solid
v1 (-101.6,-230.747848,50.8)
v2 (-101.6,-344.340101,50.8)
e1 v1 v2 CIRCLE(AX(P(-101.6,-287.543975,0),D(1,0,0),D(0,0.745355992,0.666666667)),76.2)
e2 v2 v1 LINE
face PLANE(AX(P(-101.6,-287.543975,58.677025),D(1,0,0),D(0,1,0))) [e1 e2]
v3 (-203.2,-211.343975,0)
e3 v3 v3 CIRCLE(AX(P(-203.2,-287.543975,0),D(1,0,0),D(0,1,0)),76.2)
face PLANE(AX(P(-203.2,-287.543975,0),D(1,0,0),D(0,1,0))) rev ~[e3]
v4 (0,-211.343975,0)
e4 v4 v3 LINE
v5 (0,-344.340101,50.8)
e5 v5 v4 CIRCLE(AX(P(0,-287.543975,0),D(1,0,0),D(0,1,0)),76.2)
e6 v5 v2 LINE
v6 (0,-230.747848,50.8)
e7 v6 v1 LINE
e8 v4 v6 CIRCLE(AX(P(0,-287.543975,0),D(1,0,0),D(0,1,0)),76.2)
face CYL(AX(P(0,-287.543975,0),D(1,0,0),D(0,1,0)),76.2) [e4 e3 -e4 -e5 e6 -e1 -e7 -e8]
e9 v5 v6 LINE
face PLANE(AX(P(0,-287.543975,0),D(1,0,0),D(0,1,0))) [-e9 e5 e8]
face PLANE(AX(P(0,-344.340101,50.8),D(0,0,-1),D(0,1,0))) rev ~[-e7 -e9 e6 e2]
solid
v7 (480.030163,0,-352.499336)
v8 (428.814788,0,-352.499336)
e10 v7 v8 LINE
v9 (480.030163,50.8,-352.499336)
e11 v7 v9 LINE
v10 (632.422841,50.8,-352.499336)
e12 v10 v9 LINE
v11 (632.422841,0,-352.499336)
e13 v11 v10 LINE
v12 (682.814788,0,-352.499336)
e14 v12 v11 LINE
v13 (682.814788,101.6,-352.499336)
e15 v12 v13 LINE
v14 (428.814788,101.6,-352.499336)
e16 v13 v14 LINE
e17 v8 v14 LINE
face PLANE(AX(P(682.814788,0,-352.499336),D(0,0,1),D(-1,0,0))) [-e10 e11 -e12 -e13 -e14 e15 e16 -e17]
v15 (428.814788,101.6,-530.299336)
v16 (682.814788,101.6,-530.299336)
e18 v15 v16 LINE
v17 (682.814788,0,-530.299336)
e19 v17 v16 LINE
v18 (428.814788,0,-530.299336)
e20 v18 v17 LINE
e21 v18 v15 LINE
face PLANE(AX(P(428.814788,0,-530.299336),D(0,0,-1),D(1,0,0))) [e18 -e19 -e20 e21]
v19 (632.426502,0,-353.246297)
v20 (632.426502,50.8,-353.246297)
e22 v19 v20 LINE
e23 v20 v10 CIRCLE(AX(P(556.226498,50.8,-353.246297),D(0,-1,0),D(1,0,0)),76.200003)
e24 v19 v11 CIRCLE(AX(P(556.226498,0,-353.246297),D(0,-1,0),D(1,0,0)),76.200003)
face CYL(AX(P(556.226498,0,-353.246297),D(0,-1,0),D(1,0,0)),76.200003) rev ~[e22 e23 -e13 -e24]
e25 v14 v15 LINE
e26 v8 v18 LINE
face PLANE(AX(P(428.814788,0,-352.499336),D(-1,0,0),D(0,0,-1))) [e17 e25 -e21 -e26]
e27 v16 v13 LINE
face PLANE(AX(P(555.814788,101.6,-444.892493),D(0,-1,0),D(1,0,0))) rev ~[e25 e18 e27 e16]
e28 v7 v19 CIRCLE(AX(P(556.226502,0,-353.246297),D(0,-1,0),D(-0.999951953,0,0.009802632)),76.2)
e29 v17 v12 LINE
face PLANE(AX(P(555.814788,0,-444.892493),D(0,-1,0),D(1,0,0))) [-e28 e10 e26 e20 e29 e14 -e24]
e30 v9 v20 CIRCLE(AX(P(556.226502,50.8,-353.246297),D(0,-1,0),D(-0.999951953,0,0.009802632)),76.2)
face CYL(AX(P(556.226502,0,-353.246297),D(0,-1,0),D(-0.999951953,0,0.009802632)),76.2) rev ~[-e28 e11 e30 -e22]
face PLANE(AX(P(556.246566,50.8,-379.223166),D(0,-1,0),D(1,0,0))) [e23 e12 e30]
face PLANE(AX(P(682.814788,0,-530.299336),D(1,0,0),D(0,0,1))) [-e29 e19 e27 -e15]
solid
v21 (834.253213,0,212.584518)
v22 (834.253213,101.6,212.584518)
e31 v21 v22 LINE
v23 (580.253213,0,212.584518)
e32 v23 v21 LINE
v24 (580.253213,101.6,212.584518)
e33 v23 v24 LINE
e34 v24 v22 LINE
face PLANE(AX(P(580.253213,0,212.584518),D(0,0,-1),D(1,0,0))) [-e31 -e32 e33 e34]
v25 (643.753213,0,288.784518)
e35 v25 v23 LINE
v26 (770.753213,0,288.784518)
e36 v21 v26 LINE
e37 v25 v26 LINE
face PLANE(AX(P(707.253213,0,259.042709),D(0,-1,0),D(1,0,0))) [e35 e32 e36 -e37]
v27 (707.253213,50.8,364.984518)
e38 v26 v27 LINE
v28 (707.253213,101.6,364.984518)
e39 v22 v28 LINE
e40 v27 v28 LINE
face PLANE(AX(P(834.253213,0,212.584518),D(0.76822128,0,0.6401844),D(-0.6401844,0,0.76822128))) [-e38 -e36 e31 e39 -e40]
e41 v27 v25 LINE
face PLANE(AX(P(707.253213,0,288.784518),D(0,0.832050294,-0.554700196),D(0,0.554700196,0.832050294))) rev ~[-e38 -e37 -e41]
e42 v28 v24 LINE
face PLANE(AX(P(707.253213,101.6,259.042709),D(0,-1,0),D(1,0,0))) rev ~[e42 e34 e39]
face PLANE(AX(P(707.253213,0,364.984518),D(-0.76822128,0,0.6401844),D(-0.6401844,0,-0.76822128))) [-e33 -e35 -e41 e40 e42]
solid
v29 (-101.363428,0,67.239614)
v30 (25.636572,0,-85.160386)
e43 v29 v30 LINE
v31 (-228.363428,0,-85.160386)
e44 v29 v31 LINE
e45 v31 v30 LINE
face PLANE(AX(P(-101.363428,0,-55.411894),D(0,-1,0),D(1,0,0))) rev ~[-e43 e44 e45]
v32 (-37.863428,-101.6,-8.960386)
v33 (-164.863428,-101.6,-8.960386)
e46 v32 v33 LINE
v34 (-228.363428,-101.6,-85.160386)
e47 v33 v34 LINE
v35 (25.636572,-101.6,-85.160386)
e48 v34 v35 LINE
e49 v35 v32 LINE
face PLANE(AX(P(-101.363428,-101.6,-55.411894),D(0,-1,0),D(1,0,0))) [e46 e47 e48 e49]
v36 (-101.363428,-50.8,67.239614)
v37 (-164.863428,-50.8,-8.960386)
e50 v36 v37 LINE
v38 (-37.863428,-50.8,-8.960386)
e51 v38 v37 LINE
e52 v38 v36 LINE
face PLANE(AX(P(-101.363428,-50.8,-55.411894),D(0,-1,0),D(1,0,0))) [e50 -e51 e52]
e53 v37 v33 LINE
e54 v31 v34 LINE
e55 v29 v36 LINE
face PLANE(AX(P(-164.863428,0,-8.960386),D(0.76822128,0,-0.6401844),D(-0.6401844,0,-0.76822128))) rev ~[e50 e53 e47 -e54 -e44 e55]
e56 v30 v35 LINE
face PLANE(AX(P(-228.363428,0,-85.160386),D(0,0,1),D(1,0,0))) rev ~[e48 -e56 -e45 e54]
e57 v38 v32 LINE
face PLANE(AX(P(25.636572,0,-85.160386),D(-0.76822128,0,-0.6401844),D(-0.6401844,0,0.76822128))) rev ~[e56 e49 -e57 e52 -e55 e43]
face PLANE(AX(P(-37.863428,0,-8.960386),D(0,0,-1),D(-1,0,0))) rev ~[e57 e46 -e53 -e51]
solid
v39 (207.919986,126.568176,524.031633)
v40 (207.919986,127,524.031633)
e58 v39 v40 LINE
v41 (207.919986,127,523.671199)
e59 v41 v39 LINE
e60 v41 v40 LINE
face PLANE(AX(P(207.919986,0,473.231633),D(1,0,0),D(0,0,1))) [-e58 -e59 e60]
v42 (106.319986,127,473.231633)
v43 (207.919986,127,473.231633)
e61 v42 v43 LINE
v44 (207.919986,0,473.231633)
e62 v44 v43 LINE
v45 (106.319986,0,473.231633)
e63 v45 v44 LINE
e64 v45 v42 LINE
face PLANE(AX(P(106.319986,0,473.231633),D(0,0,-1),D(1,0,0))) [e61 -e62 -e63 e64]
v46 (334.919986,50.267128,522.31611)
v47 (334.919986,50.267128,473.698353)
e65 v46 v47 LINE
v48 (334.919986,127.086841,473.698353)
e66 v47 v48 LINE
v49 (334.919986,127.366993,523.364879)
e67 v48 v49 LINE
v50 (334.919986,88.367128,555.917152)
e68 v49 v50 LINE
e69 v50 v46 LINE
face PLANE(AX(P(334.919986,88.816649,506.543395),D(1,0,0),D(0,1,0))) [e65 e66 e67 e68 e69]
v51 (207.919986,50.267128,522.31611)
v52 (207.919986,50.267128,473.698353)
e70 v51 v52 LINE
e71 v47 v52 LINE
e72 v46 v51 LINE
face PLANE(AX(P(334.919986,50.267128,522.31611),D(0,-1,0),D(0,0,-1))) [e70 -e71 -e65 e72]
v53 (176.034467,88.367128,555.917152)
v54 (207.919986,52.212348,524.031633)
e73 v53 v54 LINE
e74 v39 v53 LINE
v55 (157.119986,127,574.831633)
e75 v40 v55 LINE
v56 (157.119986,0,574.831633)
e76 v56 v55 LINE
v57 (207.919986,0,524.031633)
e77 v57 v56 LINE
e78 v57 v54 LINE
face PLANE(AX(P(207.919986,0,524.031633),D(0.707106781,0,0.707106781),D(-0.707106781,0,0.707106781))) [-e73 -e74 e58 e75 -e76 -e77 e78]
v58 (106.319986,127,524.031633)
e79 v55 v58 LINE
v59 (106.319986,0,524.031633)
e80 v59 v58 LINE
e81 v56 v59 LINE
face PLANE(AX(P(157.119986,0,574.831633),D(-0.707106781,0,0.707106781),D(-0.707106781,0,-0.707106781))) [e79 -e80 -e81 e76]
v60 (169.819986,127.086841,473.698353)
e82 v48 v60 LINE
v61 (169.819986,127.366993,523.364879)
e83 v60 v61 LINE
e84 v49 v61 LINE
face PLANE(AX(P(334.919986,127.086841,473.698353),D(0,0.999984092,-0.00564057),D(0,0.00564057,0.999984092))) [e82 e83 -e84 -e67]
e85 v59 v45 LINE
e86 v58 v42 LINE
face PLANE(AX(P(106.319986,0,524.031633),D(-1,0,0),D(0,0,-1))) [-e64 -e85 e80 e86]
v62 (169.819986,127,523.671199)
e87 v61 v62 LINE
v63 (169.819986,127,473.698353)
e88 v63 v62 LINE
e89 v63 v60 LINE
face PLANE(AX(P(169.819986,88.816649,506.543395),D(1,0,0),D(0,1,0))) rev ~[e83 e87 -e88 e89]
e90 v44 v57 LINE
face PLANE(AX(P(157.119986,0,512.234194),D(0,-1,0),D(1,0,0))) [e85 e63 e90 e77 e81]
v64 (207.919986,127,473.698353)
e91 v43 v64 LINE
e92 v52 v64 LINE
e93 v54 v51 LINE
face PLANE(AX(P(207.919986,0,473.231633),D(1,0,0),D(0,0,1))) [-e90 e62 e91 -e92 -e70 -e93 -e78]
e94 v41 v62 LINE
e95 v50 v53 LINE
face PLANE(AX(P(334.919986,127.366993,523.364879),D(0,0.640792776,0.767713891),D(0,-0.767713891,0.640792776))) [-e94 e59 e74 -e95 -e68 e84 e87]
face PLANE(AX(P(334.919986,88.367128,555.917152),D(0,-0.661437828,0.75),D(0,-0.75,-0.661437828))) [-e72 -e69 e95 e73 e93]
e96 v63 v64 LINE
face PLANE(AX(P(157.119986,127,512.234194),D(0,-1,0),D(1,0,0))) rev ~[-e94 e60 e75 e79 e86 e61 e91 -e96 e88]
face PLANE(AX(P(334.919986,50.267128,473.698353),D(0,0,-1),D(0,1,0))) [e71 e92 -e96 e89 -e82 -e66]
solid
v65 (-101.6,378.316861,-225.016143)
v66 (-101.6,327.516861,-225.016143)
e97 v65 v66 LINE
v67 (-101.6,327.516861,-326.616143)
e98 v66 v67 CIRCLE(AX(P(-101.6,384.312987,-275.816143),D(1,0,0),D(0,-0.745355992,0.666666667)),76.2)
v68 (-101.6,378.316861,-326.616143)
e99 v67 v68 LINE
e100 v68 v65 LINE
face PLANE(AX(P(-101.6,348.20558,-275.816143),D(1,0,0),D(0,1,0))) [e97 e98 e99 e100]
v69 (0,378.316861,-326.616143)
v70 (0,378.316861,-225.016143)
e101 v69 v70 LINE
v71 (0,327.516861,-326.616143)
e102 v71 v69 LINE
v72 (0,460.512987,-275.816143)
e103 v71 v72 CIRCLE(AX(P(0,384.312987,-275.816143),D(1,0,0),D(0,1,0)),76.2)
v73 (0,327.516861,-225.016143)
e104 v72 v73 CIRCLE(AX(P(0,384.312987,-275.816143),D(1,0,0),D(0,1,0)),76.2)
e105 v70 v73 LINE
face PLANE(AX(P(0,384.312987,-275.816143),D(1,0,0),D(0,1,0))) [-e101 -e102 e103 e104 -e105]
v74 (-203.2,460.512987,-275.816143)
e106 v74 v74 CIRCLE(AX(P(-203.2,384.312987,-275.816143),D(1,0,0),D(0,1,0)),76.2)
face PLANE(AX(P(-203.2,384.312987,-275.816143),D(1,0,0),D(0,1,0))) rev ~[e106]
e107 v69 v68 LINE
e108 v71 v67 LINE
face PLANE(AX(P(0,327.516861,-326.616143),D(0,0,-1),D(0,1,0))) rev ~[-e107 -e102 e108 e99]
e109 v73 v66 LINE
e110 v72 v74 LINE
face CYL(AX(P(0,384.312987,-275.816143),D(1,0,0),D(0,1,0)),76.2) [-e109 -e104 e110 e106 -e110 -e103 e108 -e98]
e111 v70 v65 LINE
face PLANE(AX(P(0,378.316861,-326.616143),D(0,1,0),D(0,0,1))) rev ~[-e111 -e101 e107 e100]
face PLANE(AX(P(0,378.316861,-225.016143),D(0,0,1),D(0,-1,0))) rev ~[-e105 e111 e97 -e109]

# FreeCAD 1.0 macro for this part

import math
import FreeCAD as App
import Part
import Sketcher
Q = App.Units.Quantity


def add_polygon(sketch, points):
    """Adds a closed chain of lines whose ends are joined by coincident constraints."""
    first, n = sketch.GeometryCount, len(points)
    for a, b in zip(points, points[1:] + points[:1]):
        sketch.addGeometry(Part.LineSegment(App.Vector(*a, 0), App.Vector(*b, 0)), False)
    for i in range(n):
        sketch.addConstraint(Sketcher.Constraint("Coincident", first + i, 2, first + (i + 1) % n, 1))

doc = App.newDocument("Part")
body = doc.addObject("PartDesign::Body", "Body")

sketch1 = body.newObject("Sketcher::SketchObject", "Sketch")
sketch1.AttachmentSupport = (doc.getObject("XZ_Plane"), [""])
sketch1.MapMode = "FlatFace"
add_polygon(sketch1, [(-165, -9), (-228, -85), (26, -85), (-38, -9)])
sketch1.addConstraint([
    Sketcher.Constraint("Horizontal", 1),
    Sketcher.Constraint("Horizontal", 3),
    Sketcher.Constraint("Equal", 0, 2),
    Sketcher.Constraint("DistanceX", 1, 1, 1, 2, Q("10 in")),
    Sketcher.Constraint("DistanceX", 3, 2, 3, 1, Q("5 in")),
    Sketcher.Constraint("DistanceY", 1, 2, 2, 2, Q("3 in")),
    Sketcher.Constraint("DistanceX", 0, 2, -1, 1, Q("228.363428 mm")),
    Sketcher.Constraint("DistanceY", 0, 2, -1, 1, Q("85.160386 mm")),
])
pad1 = body.newObject("PartDesign::Pad", "Pad")
pad1.Profile = sketch1
pad1.Length = Q("4 in")

sketch2 = body.newObject("Sketcher::SketchObject", "Sketch001")
sketch2.AttachmentSupport = (doc.getObject("XZ_Plane"), [""])
sketch2.MapMode = "FlatFace"
add_polygon(sketch2, [(-228, -85), (26, -85), (-101, 67)])
sketch2.addConstraint([
    Sketcher.Constraint("Horizontal", 0),
    Sketcher.Constraint("Equal", 1, 2),
    Sketcher.Constraint("DistanceX", 0, 1, 0, 2, Q("10 in")),
    Sketcher.Constraint("DistanceY", 0, 2, 1, 2, Q("6 in")),
    Sketcher.Constraint("DistanceX", -1, 1, 0, 2, Q("25.636572 mm")),
    Sketcher.Constraint("DistanceY", 0, 2, -1, 1, Q("85.160386 mm")),
])
pad2 = body.newObject("PartDesign::Pad", "Pad001")
pad2.Profile = sketch2
pad2.Length = Q("2 in")
body2 = doc.addObject("PartDesign::Body", "Body001")

sketch3 = body2.newObject("Sketcher::SketchObject", "Sketch002")
sketch3.AttachmentSupport = (doc.getObject("XZ_Plane001"), [""])
sketch3.MapMode = "FlatFace"
add_polygon(sketch3, [(707, 365), (580, 213), (834, 213)])
sketch3.addConstraint([
    Sketcher.Constraint("Horizontal", 1),
    Sketcher.Constraint("Equal", 0, 2),
    Sketcher.Constraint("DistanceX", 1, 1, 1, 2, Q("10 in")),
    Sketcher.Constraint("DistanceY", 0, 2, 2, 2, Q("6 in")),
    Sketcher.Constraint("DistanceX", -1, 1, 0, 2, Q("580.253213 mm")),
    Sketcher.Constraint("DistanceY", -1, 1, 0, 2, Q("212.584518 mm")),
])
pad3 = body2.newObject("PartDesign::Pad", "Pad002")
pad3.Profile = sketch3
pad3.Length = Q("4 in")
pad3.Reversed = True

sketch4 = body2.newObject("Sketcher::SketchObject", "Sketch003")
sketch4.AttachmentSupport = (doc.getObject("YZ_Plane001"), [""])
sketch4.MapMode = "FlatFace"
sketch4.AttachmentOffset = App.Placement(App.Vector(0, 0, 707.253213), App.Rotation())
add_polygon(sketch4, [(0, 365), (0, 289), (51, 365)])
sketch4.addConstraint([
    Sketcher.Constraint("Vertical", 0),
    Sketcher.Constraint("Horizontal", 2),
    Sketcher.Constraint("PointOnObject", 0, 2, -2),
    Sketcher.Constraint("DistanceX", 2, 2, 2, 1, Q("2 in")),
    Sketcher.Constraint("DistanceY", 0, 2, 0, 1, Q("3 in")),
    Sketcher.Constraint("DistanceY", -1, 1, 0, 2, Q("288.784518 mm")),
])
pocket1 = body2.newObject("PartDesign::Pocket", "Pocket")
pocket1.Profile = sketch4
pocket1.Length = Q("5 in")
pocket1.Midplane = True
body3 = doc.addObject("PartDesign::Body", "Body002")

sketch5 = body3.newObject("Sketcher::SketchObject", "Sketch004")
sketch5.AttachmentSupport = (doc.getObject("XZ_Plane002"), [""])
sketch5.MapMode = "FlatFace"
add_polygon(sketch5, [(106, 524), (106, 473), (208, 473), (208, 524), (157, 575)])
sketch5.addConstraint([
    Sketcher.Constraint("Vertical", 0),
    Sketcher.Constraint("Horizontal", 1),
    Sketcher.Constraint("Vertical", 2),
    Sketcher.Constraint("Perpendicular", 3, 4),
    Sketcher.Constraint("Horizontal", 2, 2, 4, 2),
    Sketcher.Constraint("Equal", 3, 4),
    Sketcher.Constraint("DistanceX", 1, 1, 1, 2, Q("4 in")),
    Sketcher.Constraint("DistanceY", 0, 2, 0, 1, Q("2 in")),
    Sketcher.Constraint("DistanceX", -1, 1, 0, 2, Q("106.319986 mm")),
    Sketcher.Constraint("DistanceY", -1, 1, 0, 2, Q("473.231633 mm")),
])
pad4 = body3.newObject("PartDesign::Pad", "Pad003")
pad4.Profile = sketch5
pad4.Length = Q("5 in")
pad4.Reversed = True

sketch6 = body3.newObject("Sketcher::SketchObject", "Sketch005")
sketch6.AttachmentSupport = (doc.getObject("YZ_Plane002"), [""])
sketch6.MapMode = "FlatFace"
sketch6.AttachmentOffset = App.Placement(App.Vector(0, 0, 334.919986), App.Rotation())
add_polygon(sketch6, [(50, 522), (50, 474), (127, 474), (127, 523), (88, 556)])
sketch6.addConstraint([
    Sketcher.Constraint("Vertical", 0),
    Sketcher.Constraint("Horizontal", 1),
    Sketcher.Constraint("Equal", 3, 4),
    Sketcher.Constraint("Distance", 3, Q("2 in")),
    Sketcher.Constraint("DistanceX", 0, 2, 3, 2, Q("1.5 in")),
    Sketcher.Constraint("DistanceY", 0, 2, 3, 2, Q("82.218798 mm")),
    Sketcher.Constraint("DistanceX", 1, 1, 1, 2, Q("76.819714 mm")),
    Sketcher.Constraint("DistanceX", -1, 1, 1, 2, Q("127.086841 mm")),
    Sketcher.Constraint("DistanceY", -1, 1, 2, 2, Q("523.364879 mm")),
    Sketcher.Constraint("DistanceY", -1, 1, 3, 2, Q("555.917152 mm")),
])
pad5 = body3.newObject("PartDesign::Pad", "Pad004")
pad5.Profile = sketch6
pad5.Length = Q("6.5 in")
pad5.Reversed = True
body4 = doc.addObject("PartDesign::Body", "Body003")

sketch7 = body4.newObject("Sketcher::SketchObject", "Sketch006")
sketch7.AttachmentSupport = (doc.getObject("YZ_Plane003"), [""])
sketch7.MapMode = "FlatFace"
sketch7.addGeometry(Part.Circle(App.Vector(-288, 0, 0), App.Vector(0, 0, 1), 76), False)
sketch7.addConstraint([
    Sketcher.Constraint("PointOnObject", 0, 3, -1),
    Sketcher.Constraint("Diameter", 0, Q("6 in")),
    Sketcher.Constraint("DistanceX", 0, 3, -1, 1, Q("287.543975 mm")),
])
pad6 = body4.newObject("PartDesign::Pad", "Pad005")
pad6.Profile = sketch7
pad6.Length = Q("8 in")
pad6.Reversed = True

sketch8 = body4.newObject("Sketcher::SketchObject", "Sketch007")
sketch8.AttachmentSupport = (doc.getObject("YZ_Plane003"), [""])
sketch8.MapMode = "FlatFace"
sketch8.addGeometry([
    Part.ArcOfCircle(Part.Circle(App.Vector(-288, 0, 0), App.Vector(0, 0, 1), 76), math.radians(42), math.radians(138)),
    Part.LineSegment(App.Vector(-344, 51, 0), App.Vector(-231, 51, 0)),
], False)
sketch8.addConstraint([
    Sketcher.Constraint("Coincident", 0, 1, 1, 2),
    Sketcher.Constraint("Coincident", 1, 1, 0, 2),
    Sketcher.Constraint("Horizontal", 1),
    Sketcher.Constraint("PointOnObject", 0, 3, -1),
    Sketcher.Constraint("Radius", 0, Q("3 in")),
    Sketcher.Constraint("DistanceY", -1, 1, 0, 1, Q("2 in")),
    Sketcher.Constraint("DistanceX", 1, 1, -1, 1, Q("344.340101 mm")),
])
pocket2 = body4.newObject("PartDesign::Pocket", "Pocket001")
pocket2.Profile = sketch8
pocket2.Length = Q("4 in")
body5 = doc.addObject("PartDesign::Body", "Body004")

sketch9 = body5.newObject("Sketcher::SketchObject", "Sketch008")
sketch9.AttachmentSupport = (doc.getObject("YZ_Plane004"), [""])
sketch9.MapMode = "FlatFace"
sketch9.addGeometry(Part.Circle(App.Vector(384, -276, 0), App.Vector(0, 0, 1), 76), False)
sketch9.addConstraint([
    Sketcher.Constraint("Diameter", 0, Q("6 in")),
    Sketcher.Constraint("DistanceX", -1, 1, 0, 3, Q("384.312987 mm")),
    Sketcher.Constraint("DistanceY", 0, 3, -1, 1, Q("275.816143 mm")),
])
pad7 = body5.newObject("PartDesign::Pad", "Pad006")
pad7.Profile = sketch9
pad7.Length = Q("8 in")
pad7.Reversed = True

sketch10 = body5.newObject("Sketcher::SketchObject", "Sketch009")
sketch10.AttachmentSupport = (doc.getObject("YZ_Plane004"), [""])
sketch10.MapMode = "FlatFace"
sketch10.addGeometry([
    Part.LineSegment(App.Vector(378, -225, 0), App.Vector(328, -225, 0)),
    Part.ArcOfCircle(Part.Circle(App.Vector(384, -276, 0), App.Vector(0, 0, 1), 76), math.radians(138), math.radians(222)),
    Part.LineSegment(App.Vector(328, -327, 0), App.Vector(378, -327, 0)),
    Part.LineSegment(App.Vector(378, -327, 0), App.Vector(378, -225, 0)),
], False)
sketch10.addConstraint([
    Sketcher.Constraint("Coincident", 0, 2, 1, 1),
    Sketcher.Constraint("Coincident", 1, 2, 2, 1),
    Sketcher.Constraint("Coincident", 2, 2, 3, 1),
    Sketcher.Constraint("Coincident", 3, 2, 0, 1),
    Sketcher.Constraint("Horizontal", 0),
    Sketcher.Constraint("Horizontal", 2),
    Sketcher.Constraint("Vertical", 3),
    Sketcher.Constraint("Vertical", 0, 2, 1, 2),
    Sketcher.Constraint("Radius", 1, Q("3 in")),
    Sketcher.Constraint("DistanceX", 0, 2, 0, 1, Q("2 in")),
    Sketcher.Constraint("DistanceY", 3, 1, 3, 2, Q("4 in")),
    Sketcher.Constraint("DistanceX", -1, 1, 0, 2, Q("327.516861 mm")),
    Sketcher.Constraint("DistanceY", 1, 3, -1, 1, Q("275.816143 mm")),
])
pocket3 = body5.newObject("PartDesign::Pocket", "Pocket002")
pocket3.Profile = sketch10
pocket3.Length = Q("4 in")
body6 = doc.addObject("PartDesign::Body", "Body005")

sketch11 = body6.newObject("Sketcher::SketchObject", "Sketch010")
sketch11.AttachmentSupport = (doc.getObject("XZ_Plane005"), [""])
sketch11.MapMode = "FlatFace"
add_polygon(sketch11, [(429, -352), (429, -530), (683, -530), (683, -352)])
sketch11.addConstraint([
    Sketcher.Constraint("Vertical", 0),
    Sketcher.Constraint("Horizontal", 1),
    Sketcher.Constraint("Vertical", 2),
    Sketcher.Constraint("Horizontal", 3),
    Sketcher.Constraint("DistanceX", 1, 1, 1, 2, Q("10 in")),
    Sketcher.Constraint("DistanceY", 0, 2, 0, 1, Q("7 in")),
    Sketcher.Constraint("DistanceX", -1, 1, 0, 2, Q("428.814788 mm")),
    Sketcher.Constraint("DistanceY", 0, 2, -1, 1, Q("530.299336 mm")),
])
pad8 = body6.newObject("PartDesign::Pad", "Pad007")
pad8.Profile = sketch11
pad8.Length = Q("4 in")
pad8.Reversed = True

sketch12 = body6.newObject("Sketcher::SketchObject", "Sketch011")
sketch12.AttachmentSupport = (doc.getObject("XZ_Plane005"), [""])
sketch12.MapMode = "FlatFace"
sketch12.addGeometry([
    Part.ArcOfCircle(Part.Circle(App.Vector(556.2, -353.2, 0), App.Vector(0, 0, 1), 76.2), math.radians(179), math.radians(360)),
    Part.ArcOfCircle(Part.Circle(App.Vector(556.2, -353.2, 0), App.Vector(0, 0, 1), 76.2), math.radians(0), math.radians(0.56)),
    Part.LineSegment(App.Vector(632.4, -352.5, 0), App.Vector(480, -352.5, 0)),
], False)
sketch12.addConstraint([
    Sketcher.Constraint("Tangent", 0, 2, 1, 1),
    Sketcher.Constraint("Coincident", 1, 2, 2, 1),
    Sketcher.Constraint("Coincident", 2, 2, 0, 1),
    Sketcher.Constraint("Horizontal", 2),
    Sketcher.Constraint("Horizontal", 1, 3, 0, 2),
    Sketcher.Constraint("Radius", 0, Q("3 in")),
    Sketcher.Constraint("Radius", 1, Q("3.0000001 in")),
    Sketcher.Constraint("DistanceX", -1, 1, 0, 3, Q("556.226502 mm")),
    Sketcher.Constraint("DistanceX", 2, 2, 2, 1, Q("152.392678 mm")),
    Sketcher.Constraint("DistanceY", 0, 3, -1, 1, Q("353.246297 mm")),
])
pocket4 = body6.newObject("PartDesign::Pocket", "Pocket003")
pocket4.Profile = sketch12
pocket4.Length = Q("2 in")

doc.recompute()
